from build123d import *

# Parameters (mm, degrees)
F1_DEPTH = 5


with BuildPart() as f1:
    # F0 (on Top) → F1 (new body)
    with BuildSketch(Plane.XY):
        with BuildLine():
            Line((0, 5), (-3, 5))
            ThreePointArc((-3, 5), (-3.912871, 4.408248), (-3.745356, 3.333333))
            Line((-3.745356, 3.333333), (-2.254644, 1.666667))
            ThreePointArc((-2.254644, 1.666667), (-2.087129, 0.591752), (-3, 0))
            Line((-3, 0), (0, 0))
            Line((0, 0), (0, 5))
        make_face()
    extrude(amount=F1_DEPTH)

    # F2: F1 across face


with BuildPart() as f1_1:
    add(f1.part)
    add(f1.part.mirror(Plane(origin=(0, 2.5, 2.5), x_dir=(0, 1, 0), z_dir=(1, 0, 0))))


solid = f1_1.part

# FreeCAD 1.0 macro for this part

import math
import FreeCAD as App
import Part
import Sketcher
Q = App.Units.Quantity

doc = App.newDocument("Part")
params = doc.addObject("Spreadsheet::Sheet", "Params")
for row, (alias, value) in enumerate([
    ("sketch1_radius", "1 mm"),
    ("sketch1_width", "3 mm"),
    ("sketch1_height", "5 mm"),
    ("pad1_length", "5 mm"),
], start=1):
    params.set(f"A{row}", alias)
    params.set(f"B{row}", "=" + value)
    params.setAlias(f"B{row}", alias)

body = doc.addObject("PartDesign::Body", "Body")

# Sketch on XY plane
sketch1 = body.newObject("Sketcher::SketchObject", "Sketch")
sketch1.AttachmentSupport = (doc.getObject("XY_Plane"), [""])
sketch1.MapMode = "FlatFace"
sketch1.addGeometry([
    Part.LineSegment(App.Vector(0, 5, 0), App.Vector(-3, 5, 0)),  # 0
    Part.ArcOfCircle(Part.Circle(App.Vector(-3, 4, 0), App.Vector(0, 0, 1), 1), math.radians(90), math.radians(222)),  # 1
    Part.LineSegment(App.Vector(-3.7, 3.3, 0), App.Vector(-2.3, 1.7, 0)),  # 2
    Part.ArcOfCircle(Part.Circle(App.Vector(-3, 1, 0), App.Vector(0, 0, 1), 1), math.radians(-90), math.radians(42)),  # 3
    Part.LineSegment(App.Vector(-3, 0, 0), App.Vector(0, 0, 0)),  # 4
    Part.LineSegment(App.Vector(0, 0, 0), App.Vector(0, 5, 0)),  # 5
], False)
sketch1.addConstraint([
    Sketcher.Constraint("Tangent", 0, 2, 1, 1),
    Sketcher.Constraint("Tangent", 1, 2, 2, 1),
    Sketcher.Constraint("Tangent", 2, 2, 3, 2),
    Sketcher.Constraint("Tangent", 3, 1, 4, 1),
    Sketcher.Constraint("Coincident", 4, 2, 5, 1),
    Sketcher.Constraint("Coincident", 5, 2, 0, 1),
    Sketcher.Constraint("Horizontal", 0),
    Sketcher.Constraint("Horizontal", 4),
    Sketcher.Constraint("Vertical", 5),
    Sketcher.Constraint("Coincident", 4, 2, -1, 1),
    Sketcher.Constraint("Equal", 1, 3),
    Sketcher.Constraint("Vertical", 1, 3, 3, 3),
    Sketcher.Constraint("Radius", 1, Q("1 mm")),
    Sketcher.Constraint("DistanceX", 0, 2, 0, 1, Q("3 mm")),
    Sketcher.Constraint("DistanceY", 5, 1, 5, 2, Q("5 mm")),
])
sketch1.setExpression("Constraints[12]", "Params.sketch1_radius")
sketch1.setExpression("Constraints[13]", "Params.sketch1_width")
sketch1.setExpression("Constraints[14]", "Params.sketch1_height")
pad1 = body.newObject("PartDesign::Pad", "Pad")
pad1.Profile = sketch1
pad1.setExpression("Length", "Params.pad1_length")
body2 = doc.addObject("PartDesign::Body", "Body001")
doc.recompute()

body2.BaseFeature = body
doc.recompute()

mirroring = doc.addObject("Part::Mirroring", "Mirroring")
mirroring.Source = body
mirroring.Base = App.Vector(0, 2.5, 2.5)
mirroring.Normal = App.Vector(1, 0, 0)
body3 = doc.addObject("PartDesign::Body", "Body002")
body3.BaseFeature = mirroring
boolean = body2.newObject("PartDesign::Boolean", "Boolean")
boolean.Type = "Fuse"
boolean.addObjects([body3])
doc.recompute()
mirroring.Visibility = False

doc.recompute()
